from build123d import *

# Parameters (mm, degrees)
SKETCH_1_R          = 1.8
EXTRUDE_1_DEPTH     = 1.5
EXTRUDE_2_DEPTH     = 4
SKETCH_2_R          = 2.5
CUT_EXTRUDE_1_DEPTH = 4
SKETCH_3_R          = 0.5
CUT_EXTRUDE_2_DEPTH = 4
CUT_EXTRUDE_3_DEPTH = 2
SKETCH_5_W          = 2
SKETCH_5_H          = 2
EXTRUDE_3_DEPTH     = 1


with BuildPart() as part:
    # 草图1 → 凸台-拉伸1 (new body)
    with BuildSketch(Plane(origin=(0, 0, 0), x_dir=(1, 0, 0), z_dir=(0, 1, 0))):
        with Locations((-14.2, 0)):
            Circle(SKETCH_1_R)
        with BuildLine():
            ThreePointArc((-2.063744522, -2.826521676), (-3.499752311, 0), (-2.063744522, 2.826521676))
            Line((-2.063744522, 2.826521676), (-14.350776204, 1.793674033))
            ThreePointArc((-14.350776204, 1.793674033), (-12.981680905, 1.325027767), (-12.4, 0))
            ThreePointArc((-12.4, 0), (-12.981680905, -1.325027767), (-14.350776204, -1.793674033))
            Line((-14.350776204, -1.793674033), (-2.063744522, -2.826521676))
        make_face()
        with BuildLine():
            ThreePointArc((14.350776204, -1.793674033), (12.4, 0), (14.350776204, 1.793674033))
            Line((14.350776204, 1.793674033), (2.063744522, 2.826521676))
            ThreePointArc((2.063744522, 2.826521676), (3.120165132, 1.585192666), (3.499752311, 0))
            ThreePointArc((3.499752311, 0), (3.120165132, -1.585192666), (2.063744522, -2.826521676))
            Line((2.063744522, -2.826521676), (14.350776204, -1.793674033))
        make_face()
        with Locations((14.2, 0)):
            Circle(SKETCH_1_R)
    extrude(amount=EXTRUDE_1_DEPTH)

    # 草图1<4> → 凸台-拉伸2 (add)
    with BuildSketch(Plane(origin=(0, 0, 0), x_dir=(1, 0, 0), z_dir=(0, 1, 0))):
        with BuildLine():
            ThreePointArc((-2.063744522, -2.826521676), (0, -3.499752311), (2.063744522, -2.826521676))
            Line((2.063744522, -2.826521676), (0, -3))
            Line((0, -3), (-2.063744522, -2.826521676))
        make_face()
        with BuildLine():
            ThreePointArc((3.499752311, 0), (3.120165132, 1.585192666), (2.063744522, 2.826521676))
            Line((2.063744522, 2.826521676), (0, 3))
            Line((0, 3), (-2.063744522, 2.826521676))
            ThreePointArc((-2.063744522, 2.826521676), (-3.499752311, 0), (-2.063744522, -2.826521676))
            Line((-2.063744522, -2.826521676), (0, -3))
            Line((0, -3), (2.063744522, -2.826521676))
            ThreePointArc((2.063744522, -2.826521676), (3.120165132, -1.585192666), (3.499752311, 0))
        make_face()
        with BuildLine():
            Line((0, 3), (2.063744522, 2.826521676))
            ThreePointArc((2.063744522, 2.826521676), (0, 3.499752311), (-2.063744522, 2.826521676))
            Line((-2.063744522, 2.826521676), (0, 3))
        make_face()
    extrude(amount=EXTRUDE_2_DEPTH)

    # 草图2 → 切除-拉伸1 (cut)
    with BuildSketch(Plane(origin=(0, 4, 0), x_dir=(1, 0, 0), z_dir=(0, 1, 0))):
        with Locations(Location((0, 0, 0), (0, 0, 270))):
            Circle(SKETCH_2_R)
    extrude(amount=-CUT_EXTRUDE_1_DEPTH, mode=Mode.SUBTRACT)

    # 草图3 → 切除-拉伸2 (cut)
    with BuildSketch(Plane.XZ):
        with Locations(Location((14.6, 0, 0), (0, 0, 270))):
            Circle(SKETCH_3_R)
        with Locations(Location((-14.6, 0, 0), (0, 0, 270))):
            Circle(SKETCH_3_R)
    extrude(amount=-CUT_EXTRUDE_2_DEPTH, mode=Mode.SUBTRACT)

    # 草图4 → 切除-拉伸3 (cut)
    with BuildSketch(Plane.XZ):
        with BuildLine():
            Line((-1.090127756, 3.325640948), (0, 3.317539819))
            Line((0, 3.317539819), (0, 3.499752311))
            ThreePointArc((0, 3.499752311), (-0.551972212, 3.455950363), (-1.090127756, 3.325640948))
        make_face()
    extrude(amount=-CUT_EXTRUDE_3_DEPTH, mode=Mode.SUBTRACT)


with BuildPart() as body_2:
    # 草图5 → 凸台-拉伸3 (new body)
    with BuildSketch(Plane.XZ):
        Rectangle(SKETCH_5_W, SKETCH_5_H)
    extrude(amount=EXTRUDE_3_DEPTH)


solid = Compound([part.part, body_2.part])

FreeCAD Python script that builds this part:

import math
import FreeCAD as App
import Part
import Sketcher
from FreeCAD import Vector
Q = App.Units.Quantity

doc = App.newDocument("Part")
body = doc.addObject("PartDesign::Body", "Body")
body.AllowCompound = True

sketch1 = body.newObject("Sketcher::SketchObject", "Sketch")
sketch1.AttachmentSupport = (doc.getObject("XZ_Plane"), [""])
sketch1.MapMode = "FlatFace"
sketch1.addGeometry([
    Part.ArcOfCircle(Part.Circle(Vector(-14.2, 0, 0), Vector(0, 0, 1), 1.8), math.radians(95), math.radians(265)),
    Part.LineSegment(Vector(-14.4, 1.8, 0), Vector(-2.1, 2.8, 0)),
    Part.ArcOfCircle(Part.Circle(Vector(0, 0, 0), Vector(0, 0, 1), 3.5), math.radians(126), math.radians(234)),
    Part.LineSegment(Vector(-2.1, -2.8, 0), Vector(-14.4, -1.8, 0)),
    Part.LineSegment(Vector(14.4, -1.8, 0), Vector(2.1, -2.8, 0)),
    Part.ArcOfCircle(Part.Circle(Vector(0, 0, 0), Vector(0, 0, 1), 3.5), math.radians(-54), math.radians(0)),
    Part.ArcOfCircle(Part.Circle(Vector(0, 0, 0), Vector(0, 0, 1), 3.5), math.radians(0), math.radians(54)),
    Part.LineSegment(Vector(2.1, 2.8, 0), Vector(14.4, 1.8, 0)),
    Part.ArcOfCircle(Part.Circle(Vector(14.2, 0, 0), Vector(0, 0, 1), 1.8), math.radians(-85), math.radians(85)),
], False)
sketch1.addConstraint([
    Sketcher.Constraint("Tangent", 0, 1, 1, 1),
    Sketcher.Constraint("Coincident", 1, 2, 2, 1),
    Sketcher.Constraint("Coincident", 2, 2, 3, 1),
    Sketcher.Constraint("Tangent", 3, 2, 0, 2),
    Sketcher.Constraint("Coincident", 4, 2, 5, 1),
    Sketcher.Constraint("Tangent", 5, 2, 6, 1),
    Sketcher.Constraint("Coincident", 6, 2, 7, 1),
    Sketcher.Constraint("Tangent", 7, 2, 8, 2),
    Sketcher.Constraint("Tangent", 8, 1, 4, 1),
    Sketcher.Constraint("Coincident", 2, 3, -1, 1),
    Sketcher.Constraint("Coincident", 5, 3, -1, 1),
    Sketcher.Constraint("Equal", 2, 5),
    Sketcher.Constraint("Equal", 5, 6),
    Sketcher.Constraint("Equal", 0, 8),
    Sketcher.Constraint("Symmetric", 0, 3, 8, 3, -1, 1),
    Sketcher.Constraint("Symmetric", 0, 1, 7, 2, -2),
    Sketcher.Constraint("PointOnObject", 5, 2, -1),
    Sketcher.Constraint("Parallel", 1, 4),
    Sketcher.Constraint("Parallel", 3, 7),
    Sketcher.Constraint("Radius", 0, Q("1.8 mm")),
    Sketcher.Constraint("DistanceX", 0, 3, -1, 1, Q("14.2 mm")),
    Sketcher.Constraint("Radius", 2, Q("3.499752 mm")),
    Sketcher.Constraint("DistanceY", -1, 1, 1, 2, Q("2.826522 mm")),
])
pad1 = body.newObject("PartDesign::Pad", "Pad")
pad1.Profile = sketch1
pad1.Length = 1.5
pad1.Reversed = True

sketch2 = body.newObject("Sketcher::SketchObject", "Sketch001")
sketch2.AttachmentSupport = (doc.getObject("XZ_Plane"), [""])
sketch2.MapMode = "FlatFace"
sketch2.addGeometry([
    Part.ArcOfCircle(Part.Circle(Vector(0, 0, 0), Vector(0, 0, 1), 3.5), math.radians(54), math.radians(126)),
    Part.ArcOfCircle(Part.Circle(Vector(0, 0, 0), Vector(0, 0, 1), 3.5), math.radians(0), math.radians(54)),
    Part.ArcOfCircle(Part.Circle(Vector(0, 0, 0), Vector(0, 0, 1), 3.5), math.radians(-54), math.radians(0)),
    Part.ArcOfCircle(Part.Circle(Vector(0, 0, 0), Vector(0, 0, 1), 3.5), math.radians(-126), math.radians(-54)),
    Part.ArcOfCircle(Part.Circle(Vector(0, 0, 0), Vector(0, 0, 1), 3.5), math.radians(126), math.radians(234)),
], False)
sketch2.addConstraint([
    Sketcher.Constraint("Tangent", 0, 1, 1, 2),
    Sketcher.Constraint("Tangent", 1, 1, 2, 2),
    Sketcher.Constraint("Tangent", 2, 1, 3, 2),
    Sketcher.Constraint("Tangent", 3, 1, 4, 2),
    Sketcher.Constraint("Tangent", 4, 1, 0, 2),
    Sketcher.Constraint("Coincident", 0, 3, -1, 1),
    Sketcher.Constraint("Coincident", 2, 3, -1, 1),
    Sketcher.Constraint("PointOnObject", 1, 1, -1),
    Sketcher.Constraint("Horizontal", 2, 1, 3, 1),
    Sketcher.Constraint("Horizontal", 0, 1, 4, 1),
    Sketcher.Constraint("Vertical", 0, 1, 2, 1),
    Sketcher.Constraint("Radius", 0, Q("3.499752 mm")),
    Sketcher.Constraint("DistanceY", -1, 1, 0, 1, Q("2.826522 mm")),
])
pad2 = body.newObject("PartDesign::Pad", "Pad001")
pad2.Profile = sketch2
pad2.Length = 4
pad2.Reversed = True

sketch3 = body.newObject("Sketcher::SketchObject", "Sketch002")
sketch3.AttachmentSupport = (doc.getObject("XZ_Plane"), [""])
sketch3.MapMode = "FlatFace"
sketch3.AttachmentOffset = App.Placement(Vector(0, 0, -4), App.Rotation())
sketch3.addGeometry(Part.Circle(Vector(0, 0, 0), Vector(0, 0, 1), 2.5), False)
sketch3.addConstraint([
    Sketcher.Constraint("Coincident", 0, 3, -1, 1),
    Sketcher.Constraint("Diameter", 0, Q("5 mm")),
])
pocket1 = body.newObject("PartDesign::Pocket", "Pocket")
pocket1.Profile = sketch3
pocket1.Length = 4
pocket1.Reversed = True

sketch4 = body.newObject("Sketcher::SketchObject", "Sketch003")
sketch4.AttachmentSupport = (doc.getObject("XZ_Plane"), [""])
sketch4.MapMode = "FlatFace"
sketch4.addGeometry([
    Part.Circle(Vector(14.6, 0, 0), Vector(0, 0, 1), 0.5),
    Part.Circle(Vector(-14.6, 0, 0), Vector(0, 0, 1), 0.5),
], False)
sketch4.addConstraint([
    Sketcher.Constraint("Equal", 0, 1),
    Sketcher.Constraint("Symmetric", 0, 3, 1, 3, -1, 1),
    Sketcher.Constraint("PointOnObject", 0, 3, -1),
    Sketcher.Constraint("Diameter", 0, Q("1 mm")),
    Sketcher.Constraint("DistanceX", -1, 1, 0, 3, Q("14.6 mm")),
])
pocket2 = body.newObject("PartDesign::Pocket", "Pocket001")
pocket2.Profile = sketch4
pocket2.Length = 4

sketch5 = body.newObject("Sketcher::SketchObject", "Sketch004")
sketch5.AttachmentSupport = (doc.getObject("XZ_Plane"), [""])
sketch5.MapMode = "FlatFace"
sketch5.addGeometry([
    Part.LineSegment(Vector(-1.09, 3.33, 0), Vector(0, 3.32, 0)),
    Part.LineSegment(Vector(0, 3.32, 0), Vector(0, 3.5, 0)),
    Part.ArcOfCircle(Part.Circle(Vector(0, 0, 0), Vector(0, 0, 1), 3.5), math.radians(90), math.radians(108.15)),
], False)
sketch5.addConstraint([
    Sketcher.Constraint("Coincident", 0, 2, 1, 1),
    Sketcher.Constraint("Coincident", 1, 2, 2, 1),
    Sketcher.Constraint("Coincident", 2, 2, 0, 1),
    Sketcher.Constraint("Vertical", 1),
    Sketcher.Constraint("Coincident", 2, 3, -1, 1),
    Sketcher.Constraint("PointOnObject", 0, 2, -2),
    Sketcher.Constraint("Radius", 2, Q("3.499752 mm")),
    Sketcher.Constraint("DistanceY", 0, 2, 2, 2, Q("0.008101 mm")),
    Sketcher.Constraint("DistanceY", 1, 1, 1, 2, Q("0.182212 mm")),
])
pocket3 = body.newObject("PartDesign::Pocket", "Pocket002")
pocket3.Profile = sketch5
pocket3.Length = 2
body2 = doc.addObject("PartDesign::Body", "Body001")

sketch6 = body2.newObject("Sketcher::SketchObject", "Sketch005")
sketch6.AttachmentSupport = (doc.getObject("XZ_Plane001"), [""])
sketch6.MapMode = "FlatFace"
sketch6.addGeometry([
    Part.LineSegment(Vector(-1, 1, 0), Vector(-1, -1, 0)),
    Part.LineSegment(Vector(-1, -1, 0), Vector(1, -1, 0)),
    Part.LineSegment(Vector(1, -1, 0), Vector(1, 1, 0)),
    Part.LineSegment(Vector(1, 1, 0), Vector(-1, 1, 0)),
], False)
sketch6.addConstraint([
    Sketcher.Constraint("Coincident", 0, 2, 1, 1),
    Sketcher.Constraint("Coincident", 1, 2, 2, 1),
    Sketcher.Constraint("Coincident", 2, 2, 3, 1),
    Sketcher.Constraint("Coincident", 3, 2, 0, 1),
    Sketcher.Constraint("Vertical", 0),
    Sketcher.Constraint("Horizontal", 1),
    Sketcher.Constraint("Vertical", 2),
    Sketcher.Constraint("Horizontal", 3),
    Sketcher.Constraint("Symmetric", 0, 2, 2, 2, -1, 1),
    Sketcher.Constraint("Equal", 3, 0),
    Sketcher.Constraint("DistanceX", 1, 1, 1, 2, Q("2 mm")),
])
pad3 = body2.newObject("PartDesign::Pad", "Pad002")
pad3.Profile = sketch6
pad3.Length = 1

doc.recompute()
